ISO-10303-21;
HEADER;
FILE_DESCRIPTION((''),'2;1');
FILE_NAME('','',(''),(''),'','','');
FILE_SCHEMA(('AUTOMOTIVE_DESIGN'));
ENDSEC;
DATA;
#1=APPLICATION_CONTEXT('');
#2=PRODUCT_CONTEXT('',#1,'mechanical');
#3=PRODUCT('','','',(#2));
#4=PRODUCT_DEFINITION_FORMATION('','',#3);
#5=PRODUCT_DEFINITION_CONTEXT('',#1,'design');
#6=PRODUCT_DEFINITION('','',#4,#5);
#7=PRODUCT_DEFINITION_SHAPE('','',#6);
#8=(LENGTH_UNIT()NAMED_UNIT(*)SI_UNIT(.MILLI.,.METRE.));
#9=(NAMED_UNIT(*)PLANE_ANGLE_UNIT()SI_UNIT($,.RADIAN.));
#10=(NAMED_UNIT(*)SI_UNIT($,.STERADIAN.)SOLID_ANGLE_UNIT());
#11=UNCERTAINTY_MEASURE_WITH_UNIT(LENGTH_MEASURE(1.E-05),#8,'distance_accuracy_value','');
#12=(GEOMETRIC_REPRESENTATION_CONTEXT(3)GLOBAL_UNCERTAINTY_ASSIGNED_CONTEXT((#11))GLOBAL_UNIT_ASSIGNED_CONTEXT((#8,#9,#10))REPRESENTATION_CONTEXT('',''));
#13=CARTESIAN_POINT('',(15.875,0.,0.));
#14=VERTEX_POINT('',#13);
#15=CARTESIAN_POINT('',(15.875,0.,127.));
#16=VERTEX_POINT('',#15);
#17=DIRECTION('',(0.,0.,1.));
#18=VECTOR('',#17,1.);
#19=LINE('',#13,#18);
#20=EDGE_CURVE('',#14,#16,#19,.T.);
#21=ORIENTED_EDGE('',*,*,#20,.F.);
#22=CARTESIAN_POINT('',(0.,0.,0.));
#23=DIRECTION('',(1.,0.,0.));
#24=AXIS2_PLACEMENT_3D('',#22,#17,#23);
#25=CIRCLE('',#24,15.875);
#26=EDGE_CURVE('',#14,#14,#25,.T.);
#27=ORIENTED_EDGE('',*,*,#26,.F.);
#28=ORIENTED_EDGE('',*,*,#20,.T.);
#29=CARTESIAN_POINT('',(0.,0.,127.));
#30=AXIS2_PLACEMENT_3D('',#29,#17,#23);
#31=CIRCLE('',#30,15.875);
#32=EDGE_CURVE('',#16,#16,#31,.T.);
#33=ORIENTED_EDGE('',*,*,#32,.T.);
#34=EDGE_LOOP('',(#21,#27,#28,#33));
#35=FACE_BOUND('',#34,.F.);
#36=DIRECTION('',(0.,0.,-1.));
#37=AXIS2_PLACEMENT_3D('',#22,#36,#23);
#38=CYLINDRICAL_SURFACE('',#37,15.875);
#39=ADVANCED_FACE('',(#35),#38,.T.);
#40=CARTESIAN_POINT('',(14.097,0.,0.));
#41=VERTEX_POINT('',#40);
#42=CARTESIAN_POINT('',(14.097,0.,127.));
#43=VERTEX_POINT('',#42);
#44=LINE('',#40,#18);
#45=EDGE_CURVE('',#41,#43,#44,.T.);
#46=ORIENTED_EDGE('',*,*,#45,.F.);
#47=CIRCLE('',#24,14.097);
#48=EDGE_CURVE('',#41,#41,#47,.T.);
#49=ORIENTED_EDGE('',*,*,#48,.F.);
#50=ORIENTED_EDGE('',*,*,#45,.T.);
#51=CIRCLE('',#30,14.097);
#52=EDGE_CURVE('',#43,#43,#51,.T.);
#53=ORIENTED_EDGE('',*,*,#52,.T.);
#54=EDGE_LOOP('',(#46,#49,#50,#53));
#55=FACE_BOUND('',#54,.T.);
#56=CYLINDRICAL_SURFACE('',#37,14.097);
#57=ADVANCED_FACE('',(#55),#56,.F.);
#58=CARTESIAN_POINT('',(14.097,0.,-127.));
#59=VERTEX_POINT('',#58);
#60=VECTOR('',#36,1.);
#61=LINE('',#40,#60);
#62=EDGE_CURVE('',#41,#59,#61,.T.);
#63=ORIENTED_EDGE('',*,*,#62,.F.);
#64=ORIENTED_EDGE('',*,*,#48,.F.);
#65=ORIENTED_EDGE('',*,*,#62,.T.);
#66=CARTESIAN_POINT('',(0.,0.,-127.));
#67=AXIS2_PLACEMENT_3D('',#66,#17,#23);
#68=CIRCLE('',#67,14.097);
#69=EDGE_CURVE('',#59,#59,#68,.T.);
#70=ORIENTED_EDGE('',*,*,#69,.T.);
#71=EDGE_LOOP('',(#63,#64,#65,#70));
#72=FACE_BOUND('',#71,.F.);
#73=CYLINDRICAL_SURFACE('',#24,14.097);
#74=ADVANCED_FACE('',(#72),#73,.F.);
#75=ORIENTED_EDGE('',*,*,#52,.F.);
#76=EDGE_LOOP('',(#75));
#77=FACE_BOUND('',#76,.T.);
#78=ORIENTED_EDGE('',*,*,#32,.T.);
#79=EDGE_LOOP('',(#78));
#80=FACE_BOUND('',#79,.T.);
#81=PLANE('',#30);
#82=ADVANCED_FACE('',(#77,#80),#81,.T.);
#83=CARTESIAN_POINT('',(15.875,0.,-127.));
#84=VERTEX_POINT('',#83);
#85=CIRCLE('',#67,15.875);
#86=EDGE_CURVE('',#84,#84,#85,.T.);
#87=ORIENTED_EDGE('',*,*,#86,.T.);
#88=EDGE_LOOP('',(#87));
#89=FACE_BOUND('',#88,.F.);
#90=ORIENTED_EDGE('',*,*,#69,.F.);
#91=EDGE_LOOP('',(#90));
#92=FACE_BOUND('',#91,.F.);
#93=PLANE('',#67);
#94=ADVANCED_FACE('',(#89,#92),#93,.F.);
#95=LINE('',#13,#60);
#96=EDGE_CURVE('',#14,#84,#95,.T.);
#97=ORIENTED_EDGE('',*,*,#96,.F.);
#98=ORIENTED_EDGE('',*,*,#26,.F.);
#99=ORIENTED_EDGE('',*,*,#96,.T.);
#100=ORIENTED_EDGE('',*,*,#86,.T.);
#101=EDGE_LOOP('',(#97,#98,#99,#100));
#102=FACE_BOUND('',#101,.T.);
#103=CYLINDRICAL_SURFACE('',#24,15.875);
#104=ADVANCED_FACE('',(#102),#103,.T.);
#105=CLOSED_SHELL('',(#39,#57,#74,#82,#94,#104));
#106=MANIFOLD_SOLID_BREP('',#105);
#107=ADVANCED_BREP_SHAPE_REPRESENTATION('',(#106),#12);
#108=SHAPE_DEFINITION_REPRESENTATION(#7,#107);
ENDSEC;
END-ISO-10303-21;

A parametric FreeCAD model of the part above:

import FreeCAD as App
import Part
import Sketcher

V = App.Vector
Q = App.Units.Quantity

doc = App.newDocument("Part")
params = doc.addObject("Spreadsheet::Sheet", "Params")
for row, (alias, value) in enumerate([
    ("sketch1_diameter", "1.25 in"),
    ("sketch1_diameter2", "1.11 in"),
    ("pad1_length", "10 in"),
], start=1):
    params.set(f"A{row}", alias)
    params.set(f"B{row}", "=" + value)
    params.setAlias(f"B{row}", alias)

body = doc.addObject("PartDesign::Body", "Body")

# Sketch on XY plane
sketch1 = body.newObject("Sketcher::SketchObject", "Sketch")
sketch1.AttachmentSupport = (doc.getObject("XY_Plane"), [""])
sketch1.MapMode = "FlatFace"
sketch1.addGeometry(Part.Circle(V(0, 0, 0), V(0, 0, 1), 15.875), False)
sketch1.addGeometry(Part.Circle(V(0, 0, 0), V(0, 0, 1), 14.097), False)
sketch1.addConstraint(Sketcher.Constraint("Coincident", 0, 3, -1, 1))
sketch1.addConstraint(Sketcher.Constraint("Coincident", 1, 3, -1, 1))
sketch1.addConstraint(Sketcher.Constraint("Diameter", 0, Q("1.25 in")))
sketch1.addConstraint(Sketcher.Constraint("Diameter", 1, Q("1.11 in")))
sketch1.setExpression("Constraints[2]", "Params.sketch1_diameter")
sketch1.setExpression("Constraints[3]", "Params.sketch1_diameter2")
pad1 = body.newObject("PartDesign::Pad", "Pad")
pad1.Profile = sketch1
pad1.setExpression("Length", "Params.pad1_length")
pad1.Midplane = True

doc.recompute()
